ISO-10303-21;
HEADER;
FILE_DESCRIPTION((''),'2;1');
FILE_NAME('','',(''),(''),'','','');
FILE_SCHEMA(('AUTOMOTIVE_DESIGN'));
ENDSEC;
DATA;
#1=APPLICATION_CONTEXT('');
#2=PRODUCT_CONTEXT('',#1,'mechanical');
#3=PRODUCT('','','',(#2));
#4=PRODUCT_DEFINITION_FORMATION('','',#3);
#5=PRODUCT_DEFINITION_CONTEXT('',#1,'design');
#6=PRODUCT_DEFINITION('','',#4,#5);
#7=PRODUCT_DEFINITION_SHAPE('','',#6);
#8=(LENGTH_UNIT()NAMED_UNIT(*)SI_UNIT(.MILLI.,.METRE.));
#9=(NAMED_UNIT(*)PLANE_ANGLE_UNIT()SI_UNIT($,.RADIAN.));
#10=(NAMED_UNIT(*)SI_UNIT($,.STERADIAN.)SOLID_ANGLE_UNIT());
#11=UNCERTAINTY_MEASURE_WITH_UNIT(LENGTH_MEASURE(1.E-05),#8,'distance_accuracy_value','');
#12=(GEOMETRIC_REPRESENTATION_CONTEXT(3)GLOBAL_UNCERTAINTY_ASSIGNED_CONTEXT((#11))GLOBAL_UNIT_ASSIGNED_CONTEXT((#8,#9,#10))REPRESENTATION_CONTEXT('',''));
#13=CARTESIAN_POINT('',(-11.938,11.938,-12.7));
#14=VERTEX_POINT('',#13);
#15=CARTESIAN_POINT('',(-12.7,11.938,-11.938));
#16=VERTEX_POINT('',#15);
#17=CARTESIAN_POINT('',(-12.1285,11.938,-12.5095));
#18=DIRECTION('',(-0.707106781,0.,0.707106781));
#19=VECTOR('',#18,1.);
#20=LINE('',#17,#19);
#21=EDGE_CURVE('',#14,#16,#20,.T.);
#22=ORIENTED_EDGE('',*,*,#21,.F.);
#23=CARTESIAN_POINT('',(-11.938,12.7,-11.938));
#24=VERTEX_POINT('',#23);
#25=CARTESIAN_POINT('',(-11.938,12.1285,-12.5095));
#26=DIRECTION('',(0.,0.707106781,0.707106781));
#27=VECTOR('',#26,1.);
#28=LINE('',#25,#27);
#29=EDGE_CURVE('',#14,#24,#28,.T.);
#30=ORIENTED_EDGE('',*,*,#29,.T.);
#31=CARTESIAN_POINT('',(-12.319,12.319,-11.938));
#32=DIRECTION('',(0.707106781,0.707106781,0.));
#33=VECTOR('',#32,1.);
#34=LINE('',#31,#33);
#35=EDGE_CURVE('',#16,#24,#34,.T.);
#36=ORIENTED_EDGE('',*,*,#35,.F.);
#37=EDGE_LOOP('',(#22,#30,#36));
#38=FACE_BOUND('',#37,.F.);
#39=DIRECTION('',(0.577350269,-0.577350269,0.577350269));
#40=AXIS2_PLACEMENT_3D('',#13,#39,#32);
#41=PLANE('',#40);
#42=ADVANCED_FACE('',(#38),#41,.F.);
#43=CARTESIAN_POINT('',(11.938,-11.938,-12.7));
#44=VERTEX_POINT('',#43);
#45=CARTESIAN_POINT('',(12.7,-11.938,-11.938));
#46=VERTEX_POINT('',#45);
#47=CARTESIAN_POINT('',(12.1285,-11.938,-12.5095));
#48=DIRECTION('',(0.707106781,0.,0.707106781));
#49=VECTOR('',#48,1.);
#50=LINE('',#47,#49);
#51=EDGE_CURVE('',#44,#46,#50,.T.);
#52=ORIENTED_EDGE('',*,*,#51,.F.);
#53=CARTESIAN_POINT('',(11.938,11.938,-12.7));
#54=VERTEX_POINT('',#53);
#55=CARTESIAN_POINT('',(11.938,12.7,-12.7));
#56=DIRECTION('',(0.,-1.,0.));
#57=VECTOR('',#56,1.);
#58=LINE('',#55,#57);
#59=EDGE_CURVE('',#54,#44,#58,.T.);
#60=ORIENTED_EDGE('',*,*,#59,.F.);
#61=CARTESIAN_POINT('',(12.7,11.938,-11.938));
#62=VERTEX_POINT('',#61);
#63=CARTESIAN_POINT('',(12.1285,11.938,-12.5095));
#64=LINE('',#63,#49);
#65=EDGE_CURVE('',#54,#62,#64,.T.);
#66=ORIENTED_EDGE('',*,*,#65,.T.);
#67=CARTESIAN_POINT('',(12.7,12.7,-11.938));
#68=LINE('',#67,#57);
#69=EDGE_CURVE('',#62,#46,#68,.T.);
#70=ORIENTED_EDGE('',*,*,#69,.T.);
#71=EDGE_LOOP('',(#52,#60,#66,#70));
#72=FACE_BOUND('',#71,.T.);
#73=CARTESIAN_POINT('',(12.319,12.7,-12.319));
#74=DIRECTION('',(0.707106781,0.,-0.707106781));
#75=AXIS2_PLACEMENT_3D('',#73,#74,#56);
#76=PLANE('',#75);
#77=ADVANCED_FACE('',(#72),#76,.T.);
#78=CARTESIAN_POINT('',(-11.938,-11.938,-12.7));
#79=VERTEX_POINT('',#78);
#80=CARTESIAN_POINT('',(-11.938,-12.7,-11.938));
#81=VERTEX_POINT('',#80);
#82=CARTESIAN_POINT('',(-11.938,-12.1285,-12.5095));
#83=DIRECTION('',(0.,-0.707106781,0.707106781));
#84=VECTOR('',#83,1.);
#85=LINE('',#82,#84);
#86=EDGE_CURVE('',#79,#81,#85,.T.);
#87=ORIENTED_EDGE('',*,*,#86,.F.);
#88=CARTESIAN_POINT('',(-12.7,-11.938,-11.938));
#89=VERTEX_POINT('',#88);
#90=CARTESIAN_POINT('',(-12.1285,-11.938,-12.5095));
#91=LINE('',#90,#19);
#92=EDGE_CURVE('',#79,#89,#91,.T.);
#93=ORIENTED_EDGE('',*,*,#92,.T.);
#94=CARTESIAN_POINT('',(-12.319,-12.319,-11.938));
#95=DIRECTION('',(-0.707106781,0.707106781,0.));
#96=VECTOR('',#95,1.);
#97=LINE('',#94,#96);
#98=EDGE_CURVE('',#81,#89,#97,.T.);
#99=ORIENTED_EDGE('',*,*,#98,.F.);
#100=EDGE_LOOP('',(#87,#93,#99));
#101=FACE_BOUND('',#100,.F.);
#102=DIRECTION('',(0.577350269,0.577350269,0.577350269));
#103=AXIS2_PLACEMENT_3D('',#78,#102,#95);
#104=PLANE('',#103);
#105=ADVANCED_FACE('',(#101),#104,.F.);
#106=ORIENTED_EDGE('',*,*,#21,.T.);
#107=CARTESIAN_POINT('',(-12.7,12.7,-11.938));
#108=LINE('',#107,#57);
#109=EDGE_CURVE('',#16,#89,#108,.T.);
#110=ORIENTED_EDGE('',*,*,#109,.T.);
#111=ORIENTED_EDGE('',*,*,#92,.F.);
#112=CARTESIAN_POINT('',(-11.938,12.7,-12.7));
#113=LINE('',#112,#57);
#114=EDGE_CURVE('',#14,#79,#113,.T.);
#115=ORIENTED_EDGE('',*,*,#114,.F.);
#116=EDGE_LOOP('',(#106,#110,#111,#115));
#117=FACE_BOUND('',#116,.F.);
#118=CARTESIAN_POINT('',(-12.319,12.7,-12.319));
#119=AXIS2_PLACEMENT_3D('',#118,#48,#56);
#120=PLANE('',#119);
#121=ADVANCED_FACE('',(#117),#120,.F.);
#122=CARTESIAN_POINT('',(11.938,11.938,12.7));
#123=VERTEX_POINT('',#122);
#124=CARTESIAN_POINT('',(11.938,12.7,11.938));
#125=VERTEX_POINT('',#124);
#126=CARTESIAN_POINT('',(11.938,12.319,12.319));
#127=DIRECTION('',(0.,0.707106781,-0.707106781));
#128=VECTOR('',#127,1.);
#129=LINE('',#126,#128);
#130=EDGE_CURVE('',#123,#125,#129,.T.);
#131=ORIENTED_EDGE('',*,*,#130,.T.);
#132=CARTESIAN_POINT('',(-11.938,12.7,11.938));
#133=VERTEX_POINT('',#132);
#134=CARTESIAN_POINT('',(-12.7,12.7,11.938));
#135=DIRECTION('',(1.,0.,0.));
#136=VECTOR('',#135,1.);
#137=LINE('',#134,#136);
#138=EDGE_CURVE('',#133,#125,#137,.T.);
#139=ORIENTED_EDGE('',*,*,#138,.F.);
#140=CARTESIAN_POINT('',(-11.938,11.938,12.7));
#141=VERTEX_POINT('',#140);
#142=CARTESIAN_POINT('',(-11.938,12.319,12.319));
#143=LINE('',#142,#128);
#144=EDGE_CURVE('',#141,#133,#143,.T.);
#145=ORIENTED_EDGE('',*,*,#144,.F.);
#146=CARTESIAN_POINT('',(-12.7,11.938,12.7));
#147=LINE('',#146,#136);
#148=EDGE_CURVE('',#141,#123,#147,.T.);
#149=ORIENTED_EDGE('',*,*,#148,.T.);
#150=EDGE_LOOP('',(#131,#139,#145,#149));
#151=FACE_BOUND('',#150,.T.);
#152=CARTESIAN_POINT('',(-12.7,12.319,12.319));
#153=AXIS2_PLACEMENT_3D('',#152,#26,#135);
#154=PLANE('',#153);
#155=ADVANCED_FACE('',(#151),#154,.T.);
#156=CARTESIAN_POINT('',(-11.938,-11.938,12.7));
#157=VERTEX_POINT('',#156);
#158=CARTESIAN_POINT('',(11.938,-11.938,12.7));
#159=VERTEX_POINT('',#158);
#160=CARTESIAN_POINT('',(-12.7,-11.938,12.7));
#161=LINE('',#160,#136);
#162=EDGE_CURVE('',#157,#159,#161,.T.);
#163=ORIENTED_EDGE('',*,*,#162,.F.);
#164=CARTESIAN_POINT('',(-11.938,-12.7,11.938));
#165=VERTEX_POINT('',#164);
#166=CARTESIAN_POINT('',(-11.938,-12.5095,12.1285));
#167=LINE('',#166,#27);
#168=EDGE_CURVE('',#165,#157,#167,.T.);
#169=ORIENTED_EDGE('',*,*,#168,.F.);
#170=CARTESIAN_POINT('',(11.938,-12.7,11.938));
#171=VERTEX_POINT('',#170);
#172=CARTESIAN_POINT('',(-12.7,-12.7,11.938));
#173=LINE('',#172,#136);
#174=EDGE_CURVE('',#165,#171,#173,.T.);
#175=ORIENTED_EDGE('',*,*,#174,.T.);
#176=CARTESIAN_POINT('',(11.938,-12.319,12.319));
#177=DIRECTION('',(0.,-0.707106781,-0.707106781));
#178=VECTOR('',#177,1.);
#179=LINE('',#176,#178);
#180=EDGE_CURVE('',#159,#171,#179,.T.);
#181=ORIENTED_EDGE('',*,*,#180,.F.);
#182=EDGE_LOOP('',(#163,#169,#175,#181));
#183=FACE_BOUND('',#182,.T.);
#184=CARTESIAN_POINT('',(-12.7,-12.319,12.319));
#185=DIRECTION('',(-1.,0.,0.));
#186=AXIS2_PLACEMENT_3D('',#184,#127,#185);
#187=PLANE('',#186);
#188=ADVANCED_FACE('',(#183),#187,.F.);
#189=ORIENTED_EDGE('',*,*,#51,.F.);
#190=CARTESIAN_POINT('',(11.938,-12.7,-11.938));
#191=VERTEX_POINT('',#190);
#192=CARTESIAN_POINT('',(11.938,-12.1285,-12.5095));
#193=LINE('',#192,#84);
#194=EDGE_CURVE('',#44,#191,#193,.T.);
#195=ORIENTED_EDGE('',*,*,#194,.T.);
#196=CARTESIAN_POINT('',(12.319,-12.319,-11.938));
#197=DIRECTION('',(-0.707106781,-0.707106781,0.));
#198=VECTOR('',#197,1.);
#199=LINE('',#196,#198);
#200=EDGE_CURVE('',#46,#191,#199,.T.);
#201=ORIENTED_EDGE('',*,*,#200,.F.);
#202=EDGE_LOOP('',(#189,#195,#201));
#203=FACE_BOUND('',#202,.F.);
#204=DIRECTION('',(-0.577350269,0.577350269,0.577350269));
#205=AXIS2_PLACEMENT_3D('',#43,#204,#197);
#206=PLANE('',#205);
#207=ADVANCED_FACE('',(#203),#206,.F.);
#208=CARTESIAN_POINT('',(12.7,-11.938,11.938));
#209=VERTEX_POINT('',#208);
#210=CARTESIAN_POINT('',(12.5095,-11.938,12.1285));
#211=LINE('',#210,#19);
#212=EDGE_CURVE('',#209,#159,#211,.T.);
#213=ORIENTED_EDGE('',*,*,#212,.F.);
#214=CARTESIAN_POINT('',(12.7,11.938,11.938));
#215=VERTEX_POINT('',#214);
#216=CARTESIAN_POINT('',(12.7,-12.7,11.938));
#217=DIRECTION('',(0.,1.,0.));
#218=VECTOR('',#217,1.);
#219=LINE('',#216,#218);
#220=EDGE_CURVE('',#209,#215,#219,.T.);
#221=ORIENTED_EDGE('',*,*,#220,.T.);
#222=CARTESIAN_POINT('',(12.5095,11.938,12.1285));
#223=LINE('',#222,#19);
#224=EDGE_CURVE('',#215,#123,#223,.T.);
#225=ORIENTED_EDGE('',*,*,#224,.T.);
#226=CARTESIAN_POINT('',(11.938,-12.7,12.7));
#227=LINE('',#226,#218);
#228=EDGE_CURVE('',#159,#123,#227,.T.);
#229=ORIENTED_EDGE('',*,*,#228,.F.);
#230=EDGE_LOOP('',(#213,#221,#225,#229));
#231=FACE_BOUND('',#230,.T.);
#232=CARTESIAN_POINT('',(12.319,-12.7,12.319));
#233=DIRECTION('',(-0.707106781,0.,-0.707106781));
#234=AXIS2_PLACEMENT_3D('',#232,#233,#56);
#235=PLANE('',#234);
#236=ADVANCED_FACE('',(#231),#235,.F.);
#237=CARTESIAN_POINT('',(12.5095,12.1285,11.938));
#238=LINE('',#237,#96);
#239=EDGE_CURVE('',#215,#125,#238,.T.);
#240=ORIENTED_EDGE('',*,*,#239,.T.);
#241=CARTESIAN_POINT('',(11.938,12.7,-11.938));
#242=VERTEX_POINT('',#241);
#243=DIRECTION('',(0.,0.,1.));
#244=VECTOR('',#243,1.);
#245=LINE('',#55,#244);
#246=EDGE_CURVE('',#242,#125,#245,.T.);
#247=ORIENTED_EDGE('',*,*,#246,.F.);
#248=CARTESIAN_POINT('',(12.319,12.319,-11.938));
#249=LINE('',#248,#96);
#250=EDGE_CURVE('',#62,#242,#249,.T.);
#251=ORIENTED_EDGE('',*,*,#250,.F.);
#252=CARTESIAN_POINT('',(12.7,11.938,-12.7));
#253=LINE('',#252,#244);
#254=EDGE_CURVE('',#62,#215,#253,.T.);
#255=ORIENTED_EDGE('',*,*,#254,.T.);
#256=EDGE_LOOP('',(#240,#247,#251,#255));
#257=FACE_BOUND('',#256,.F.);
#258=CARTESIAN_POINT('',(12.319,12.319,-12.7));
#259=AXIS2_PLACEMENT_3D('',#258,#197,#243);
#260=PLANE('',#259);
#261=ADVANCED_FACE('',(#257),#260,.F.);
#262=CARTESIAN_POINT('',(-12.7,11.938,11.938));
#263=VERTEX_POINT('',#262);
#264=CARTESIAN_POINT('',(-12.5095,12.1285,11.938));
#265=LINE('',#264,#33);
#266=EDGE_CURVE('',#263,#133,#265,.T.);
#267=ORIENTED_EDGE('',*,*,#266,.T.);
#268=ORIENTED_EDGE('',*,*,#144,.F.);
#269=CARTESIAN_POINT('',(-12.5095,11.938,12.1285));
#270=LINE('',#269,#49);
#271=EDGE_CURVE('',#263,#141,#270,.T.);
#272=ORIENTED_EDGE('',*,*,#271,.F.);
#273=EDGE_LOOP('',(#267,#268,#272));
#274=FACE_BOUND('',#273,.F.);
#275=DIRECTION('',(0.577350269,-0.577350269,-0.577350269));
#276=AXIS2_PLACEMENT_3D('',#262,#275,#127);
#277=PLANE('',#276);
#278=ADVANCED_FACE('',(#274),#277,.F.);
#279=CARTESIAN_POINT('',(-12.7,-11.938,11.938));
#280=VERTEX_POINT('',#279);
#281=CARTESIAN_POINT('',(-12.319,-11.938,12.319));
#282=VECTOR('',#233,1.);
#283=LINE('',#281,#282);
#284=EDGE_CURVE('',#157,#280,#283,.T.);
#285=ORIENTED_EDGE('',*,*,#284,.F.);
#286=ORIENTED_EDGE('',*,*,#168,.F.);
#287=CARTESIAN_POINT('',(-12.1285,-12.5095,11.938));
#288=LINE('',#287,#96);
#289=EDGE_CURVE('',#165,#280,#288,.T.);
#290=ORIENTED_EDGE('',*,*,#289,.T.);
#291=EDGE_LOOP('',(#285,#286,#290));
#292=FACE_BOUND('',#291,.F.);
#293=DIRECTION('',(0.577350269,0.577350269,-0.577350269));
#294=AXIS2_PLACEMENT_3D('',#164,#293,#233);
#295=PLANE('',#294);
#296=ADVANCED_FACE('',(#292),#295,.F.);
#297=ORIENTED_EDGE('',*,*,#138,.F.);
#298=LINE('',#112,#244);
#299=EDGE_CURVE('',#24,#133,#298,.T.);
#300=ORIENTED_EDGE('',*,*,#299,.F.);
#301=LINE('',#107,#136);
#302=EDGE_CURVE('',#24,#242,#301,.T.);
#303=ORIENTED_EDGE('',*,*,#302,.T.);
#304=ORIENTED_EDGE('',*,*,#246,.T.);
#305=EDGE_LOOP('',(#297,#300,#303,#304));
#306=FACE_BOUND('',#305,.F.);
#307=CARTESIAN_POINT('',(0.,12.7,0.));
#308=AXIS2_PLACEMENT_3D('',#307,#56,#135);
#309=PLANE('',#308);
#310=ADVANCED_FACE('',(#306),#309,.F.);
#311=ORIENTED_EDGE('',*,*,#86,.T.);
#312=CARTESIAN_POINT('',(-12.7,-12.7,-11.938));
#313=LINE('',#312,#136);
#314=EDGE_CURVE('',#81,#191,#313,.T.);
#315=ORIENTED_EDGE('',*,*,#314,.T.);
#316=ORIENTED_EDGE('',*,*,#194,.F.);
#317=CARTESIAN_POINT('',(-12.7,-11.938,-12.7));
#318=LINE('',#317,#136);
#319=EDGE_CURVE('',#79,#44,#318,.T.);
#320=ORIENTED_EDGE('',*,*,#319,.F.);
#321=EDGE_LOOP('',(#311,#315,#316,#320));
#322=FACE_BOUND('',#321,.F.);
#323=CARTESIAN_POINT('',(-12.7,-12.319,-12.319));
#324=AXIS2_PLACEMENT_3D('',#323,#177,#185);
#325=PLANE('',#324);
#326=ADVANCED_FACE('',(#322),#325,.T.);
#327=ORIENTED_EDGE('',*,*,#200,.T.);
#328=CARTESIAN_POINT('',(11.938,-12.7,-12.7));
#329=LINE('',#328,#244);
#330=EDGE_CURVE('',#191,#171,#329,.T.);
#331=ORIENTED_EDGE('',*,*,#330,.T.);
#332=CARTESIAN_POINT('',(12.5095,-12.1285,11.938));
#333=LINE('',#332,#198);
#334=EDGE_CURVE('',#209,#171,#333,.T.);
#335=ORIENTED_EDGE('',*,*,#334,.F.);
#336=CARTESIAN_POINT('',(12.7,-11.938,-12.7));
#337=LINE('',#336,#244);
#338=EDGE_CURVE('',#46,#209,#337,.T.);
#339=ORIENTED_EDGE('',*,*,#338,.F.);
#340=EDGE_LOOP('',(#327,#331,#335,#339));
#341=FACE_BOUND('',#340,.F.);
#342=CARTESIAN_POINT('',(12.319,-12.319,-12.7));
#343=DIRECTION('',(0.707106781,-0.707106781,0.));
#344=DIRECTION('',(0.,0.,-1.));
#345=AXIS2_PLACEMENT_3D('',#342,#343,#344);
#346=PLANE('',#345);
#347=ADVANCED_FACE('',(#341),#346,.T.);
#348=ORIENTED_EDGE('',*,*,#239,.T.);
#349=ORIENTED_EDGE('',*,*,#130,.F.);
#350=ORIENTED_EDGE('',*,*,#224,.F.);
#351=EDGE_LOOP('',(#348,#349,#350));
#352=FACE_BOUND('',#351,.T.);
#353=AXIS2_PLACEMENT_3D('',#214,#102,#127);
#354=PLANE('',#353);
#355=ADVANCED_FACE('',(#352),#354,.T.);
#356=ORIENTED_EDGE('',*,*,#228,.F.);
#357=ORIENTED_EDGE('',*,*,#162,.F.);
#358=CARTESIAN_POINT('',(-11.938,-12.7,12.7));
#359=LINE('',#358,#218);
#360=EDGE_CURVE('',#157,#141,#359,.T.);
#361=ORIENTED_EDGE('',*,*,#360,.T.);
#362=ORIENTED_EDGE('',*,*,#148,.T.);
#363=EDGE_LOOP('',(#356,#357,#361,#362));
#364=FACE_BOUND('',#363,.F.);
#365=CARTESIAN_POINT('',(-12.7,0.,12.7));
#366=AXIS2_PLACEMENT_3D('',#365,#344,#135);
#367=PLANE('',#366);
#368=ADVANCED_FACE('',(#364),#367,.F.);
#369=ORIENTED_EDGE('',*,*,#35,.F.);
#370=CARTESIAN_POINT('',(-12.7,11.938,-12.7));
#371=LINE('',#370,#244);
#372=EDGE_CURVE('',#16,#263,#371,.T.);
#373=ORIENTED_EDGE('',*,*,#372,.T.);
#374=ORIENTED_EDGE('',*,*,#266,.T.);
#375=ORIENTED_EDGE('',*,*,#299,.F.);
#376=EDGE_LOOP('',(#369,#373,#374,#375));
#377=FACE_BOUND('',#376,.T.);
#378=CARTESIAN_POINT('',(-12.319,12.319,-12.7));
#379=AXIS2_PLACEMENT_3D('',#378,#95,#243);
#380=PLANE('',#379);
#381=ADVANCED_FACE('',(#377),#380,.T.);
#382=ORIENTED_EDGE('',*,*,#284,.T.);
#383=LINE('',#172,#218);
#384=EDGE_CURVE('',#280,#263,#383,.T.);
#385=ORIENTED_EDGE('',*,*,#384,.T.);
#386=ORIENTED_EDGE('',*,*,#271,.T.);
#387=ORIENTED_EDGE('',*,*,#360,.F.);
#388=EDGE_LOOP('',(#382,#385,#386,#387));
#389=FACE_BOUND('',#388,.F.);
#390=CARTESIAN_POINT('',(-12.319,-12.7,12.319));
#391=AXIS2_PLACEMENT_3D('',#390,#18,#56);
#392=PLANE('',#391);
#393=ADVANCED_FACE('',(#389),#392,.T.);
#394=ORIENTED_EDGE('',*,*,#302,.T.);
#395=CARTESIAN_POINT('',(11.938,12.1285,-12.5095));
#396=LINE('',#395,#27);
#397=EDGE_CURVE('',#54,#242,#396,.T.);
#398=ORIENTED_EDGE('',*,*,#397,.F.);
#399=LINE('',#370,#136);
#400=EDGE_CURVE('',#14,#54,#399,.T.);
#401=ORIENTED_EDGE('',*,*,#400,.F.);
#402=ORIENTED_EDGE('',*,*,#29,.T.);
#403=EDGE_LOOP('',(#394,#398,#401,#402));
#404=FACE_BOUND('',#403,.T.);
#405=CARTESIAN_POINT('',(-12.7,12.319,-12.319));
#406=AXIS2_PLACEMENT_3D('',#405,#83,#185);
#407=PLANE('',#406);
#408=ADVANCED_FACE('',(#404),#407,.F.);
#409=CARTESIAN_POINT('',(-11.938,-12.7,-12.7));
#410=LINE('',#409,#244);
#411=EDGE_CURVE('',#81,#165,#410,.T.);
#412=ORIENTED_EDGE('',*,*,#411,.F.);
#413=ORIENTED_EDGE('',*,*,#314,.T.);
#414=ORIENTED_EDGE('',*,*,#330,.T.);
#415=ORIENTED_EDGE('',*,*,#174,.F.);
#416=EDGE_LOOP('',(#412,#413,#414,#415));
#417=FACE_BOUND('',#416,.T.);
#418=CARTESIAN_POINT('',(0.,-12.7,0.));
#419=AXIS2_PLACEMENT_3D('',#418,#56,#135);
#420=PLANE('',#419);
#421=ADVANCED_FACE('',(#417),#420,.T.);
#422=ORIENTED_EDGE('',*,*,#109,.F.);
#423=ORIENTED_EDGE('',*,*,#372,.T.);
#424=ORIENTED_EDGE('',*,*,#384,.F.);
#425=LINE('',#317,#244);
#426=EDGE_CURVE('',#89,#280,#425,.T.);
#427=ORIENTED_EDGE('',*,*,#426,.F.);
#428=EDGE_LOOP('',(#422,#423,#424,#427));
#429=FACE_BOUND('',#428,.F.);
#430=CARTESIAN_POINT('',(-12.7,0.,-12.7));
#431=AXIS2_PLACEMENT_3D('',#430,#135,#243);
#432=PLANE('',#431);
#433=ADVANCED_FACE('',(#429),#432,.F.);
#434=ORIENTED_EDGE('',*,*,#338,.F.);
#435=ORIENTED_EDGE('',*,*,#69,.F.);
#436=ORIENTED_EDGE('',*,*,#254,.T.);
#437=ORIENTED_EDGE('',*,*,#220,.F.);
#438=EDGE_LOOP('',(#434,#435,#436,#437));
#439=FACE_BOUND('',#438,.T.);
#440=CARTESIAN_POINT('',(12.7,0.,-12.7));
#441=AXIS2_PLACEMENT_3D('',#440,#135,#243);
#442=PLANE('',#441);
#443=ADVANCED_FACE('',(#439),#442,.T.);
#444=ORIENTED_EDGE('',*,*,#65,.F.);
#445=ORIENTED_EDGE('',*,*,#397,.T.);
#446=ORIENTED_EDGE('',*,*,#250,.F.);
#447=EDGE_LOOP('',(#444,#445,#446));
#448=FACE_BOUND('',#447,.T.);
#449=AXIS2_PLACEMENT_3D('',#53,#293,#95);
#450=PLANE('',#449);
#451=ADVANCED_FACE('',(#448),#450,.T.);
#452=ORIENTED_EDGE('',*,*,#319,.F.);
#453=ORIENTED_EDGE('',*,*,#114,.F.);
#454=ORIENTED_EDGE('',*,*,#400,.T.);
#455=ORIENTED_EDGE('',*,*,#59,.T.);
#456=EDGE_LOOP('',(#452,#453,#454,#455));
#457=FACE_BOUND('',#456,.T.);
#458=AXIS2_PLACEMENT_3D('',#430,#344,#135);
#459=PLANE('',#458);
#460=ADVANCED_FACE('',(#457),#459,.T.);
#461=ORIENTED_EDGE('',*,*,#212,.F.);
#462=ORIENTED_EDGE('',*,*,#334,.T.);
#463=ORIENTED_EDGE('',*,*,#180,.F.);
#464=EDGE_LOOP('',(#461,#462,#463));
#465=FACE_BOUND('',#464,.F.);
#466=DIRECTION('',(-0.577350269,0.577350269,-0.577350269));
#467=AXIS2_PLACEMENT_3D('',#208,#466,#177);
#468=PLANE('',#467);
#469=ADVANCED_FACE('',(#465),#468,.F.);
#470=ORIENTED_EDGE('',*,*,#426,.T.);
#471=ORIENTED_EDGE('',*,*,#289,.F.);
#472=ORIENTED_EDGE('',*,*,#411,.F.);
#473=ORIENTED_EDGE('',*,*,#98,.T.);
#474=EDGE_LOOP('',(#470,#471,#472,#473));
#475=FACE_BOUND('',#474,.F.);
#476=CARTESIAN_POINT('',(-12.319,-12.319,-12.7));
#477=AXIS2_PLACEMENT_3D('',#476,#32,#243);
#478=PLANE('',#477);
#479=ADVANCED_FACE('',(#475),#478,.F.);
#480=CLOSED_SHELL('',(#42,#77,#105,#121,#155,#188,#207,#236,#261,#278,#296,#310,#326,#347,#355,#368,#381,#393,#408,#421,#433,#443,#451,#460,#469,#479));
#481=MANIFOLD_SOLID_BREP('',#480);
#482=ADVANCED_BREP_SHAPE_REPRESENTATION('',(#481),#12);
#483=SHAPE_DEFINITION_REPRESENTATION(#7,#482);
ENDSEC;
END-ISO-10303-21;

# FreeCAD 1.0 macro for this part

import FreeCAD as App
import Part
import Sketcher
from FreeCAD import Vector
Q = App.Units.Quantity

doc = App.newDocument("Part")
params = doc.addObject("Spreadsheet::Sheet", "Params")
for row, (alias, value) in enumerate([
    ("sketch1_width", "1 in"),
    ("pad1_length", "1 in"),
    ("chamfer_size", "0.03 in"),
], start=1):
    params.set(f"A{row}", alias)
    params.set(f"B{row}", "=" + value)
    params.setAlias(f"B{row}", alias)

body = doc.addObject("PartDesign::Body", "Body")

sketch1 = doc.addObject("Sketcher::SketchObject", "Sketch")
body.addObject(sketch1)
sketch1.AttachmentSupport = (doc.XZ_Plane, [""])
sketch1.MapMode = "FlatFace"
sketch1.addGeometry([
    Part.LineSegment(Vector(-13, 13, 0), Vector(-13, -13, 0)),
    Part.LineSegment(Vector(-13, -13, 0), Vector(13, -13, 0)),
    Part.LineSegment(Vector(13, -13, 0), Vector(13, 13, 0)),
    Part.LineSegment(Vector(13, 13, 0), Vector(-13, 13, 0)),
], False)
sketch1.addConstraint([
    Sketcher.Constraint("Coincident", 0, 2, 1, 1),
    Sketcher.Constraint("Coincident", 1, 2, 2, 1),
    Sketcher.Constraint("Coincident", 2, 2, 3, 1),
    Sketcher.Constraint("Coincident", 3, 2, 0, 1),
    Sketcher.Constraint("Vertical", 0),
    Sketcher.Constraint("Horizontal", 1),
    Sketcher.Constraint("Vertical", 2),
    Sketcher.Constraint("Horizontal", 3),
    Sketcher.Constraint("Symmetric", 0, 2, 2, 2, -1, 1),
    Sketcher.Constraint("Equal", 3, 0),
    Sketcher.Constraint("DistanceX", 1, 1, 1, 2, Q("1 in")),
])
sketch1.setExpression("Constraints[10]", "Params.sketch1_width")
pad1 = doc.addObject("PartDesign::Pad", "Pad")
body.addObject(pad1)
pad1.Profile = sketch1
pad1.setExpression("Length", "Params.pad1_length")
pad1.Midplane = True
doc.recompute()

chamfer = doc.addObject("PartDesign::Chamfer", "Chamfer")
body.addObject(chamfer)
chamfer.Base = (pad1, ["Edge1"])
chamfer.UseAllEdges = True
chamfer.setExpression("Size", "Params.chamfer_size")

doc.recompute()
